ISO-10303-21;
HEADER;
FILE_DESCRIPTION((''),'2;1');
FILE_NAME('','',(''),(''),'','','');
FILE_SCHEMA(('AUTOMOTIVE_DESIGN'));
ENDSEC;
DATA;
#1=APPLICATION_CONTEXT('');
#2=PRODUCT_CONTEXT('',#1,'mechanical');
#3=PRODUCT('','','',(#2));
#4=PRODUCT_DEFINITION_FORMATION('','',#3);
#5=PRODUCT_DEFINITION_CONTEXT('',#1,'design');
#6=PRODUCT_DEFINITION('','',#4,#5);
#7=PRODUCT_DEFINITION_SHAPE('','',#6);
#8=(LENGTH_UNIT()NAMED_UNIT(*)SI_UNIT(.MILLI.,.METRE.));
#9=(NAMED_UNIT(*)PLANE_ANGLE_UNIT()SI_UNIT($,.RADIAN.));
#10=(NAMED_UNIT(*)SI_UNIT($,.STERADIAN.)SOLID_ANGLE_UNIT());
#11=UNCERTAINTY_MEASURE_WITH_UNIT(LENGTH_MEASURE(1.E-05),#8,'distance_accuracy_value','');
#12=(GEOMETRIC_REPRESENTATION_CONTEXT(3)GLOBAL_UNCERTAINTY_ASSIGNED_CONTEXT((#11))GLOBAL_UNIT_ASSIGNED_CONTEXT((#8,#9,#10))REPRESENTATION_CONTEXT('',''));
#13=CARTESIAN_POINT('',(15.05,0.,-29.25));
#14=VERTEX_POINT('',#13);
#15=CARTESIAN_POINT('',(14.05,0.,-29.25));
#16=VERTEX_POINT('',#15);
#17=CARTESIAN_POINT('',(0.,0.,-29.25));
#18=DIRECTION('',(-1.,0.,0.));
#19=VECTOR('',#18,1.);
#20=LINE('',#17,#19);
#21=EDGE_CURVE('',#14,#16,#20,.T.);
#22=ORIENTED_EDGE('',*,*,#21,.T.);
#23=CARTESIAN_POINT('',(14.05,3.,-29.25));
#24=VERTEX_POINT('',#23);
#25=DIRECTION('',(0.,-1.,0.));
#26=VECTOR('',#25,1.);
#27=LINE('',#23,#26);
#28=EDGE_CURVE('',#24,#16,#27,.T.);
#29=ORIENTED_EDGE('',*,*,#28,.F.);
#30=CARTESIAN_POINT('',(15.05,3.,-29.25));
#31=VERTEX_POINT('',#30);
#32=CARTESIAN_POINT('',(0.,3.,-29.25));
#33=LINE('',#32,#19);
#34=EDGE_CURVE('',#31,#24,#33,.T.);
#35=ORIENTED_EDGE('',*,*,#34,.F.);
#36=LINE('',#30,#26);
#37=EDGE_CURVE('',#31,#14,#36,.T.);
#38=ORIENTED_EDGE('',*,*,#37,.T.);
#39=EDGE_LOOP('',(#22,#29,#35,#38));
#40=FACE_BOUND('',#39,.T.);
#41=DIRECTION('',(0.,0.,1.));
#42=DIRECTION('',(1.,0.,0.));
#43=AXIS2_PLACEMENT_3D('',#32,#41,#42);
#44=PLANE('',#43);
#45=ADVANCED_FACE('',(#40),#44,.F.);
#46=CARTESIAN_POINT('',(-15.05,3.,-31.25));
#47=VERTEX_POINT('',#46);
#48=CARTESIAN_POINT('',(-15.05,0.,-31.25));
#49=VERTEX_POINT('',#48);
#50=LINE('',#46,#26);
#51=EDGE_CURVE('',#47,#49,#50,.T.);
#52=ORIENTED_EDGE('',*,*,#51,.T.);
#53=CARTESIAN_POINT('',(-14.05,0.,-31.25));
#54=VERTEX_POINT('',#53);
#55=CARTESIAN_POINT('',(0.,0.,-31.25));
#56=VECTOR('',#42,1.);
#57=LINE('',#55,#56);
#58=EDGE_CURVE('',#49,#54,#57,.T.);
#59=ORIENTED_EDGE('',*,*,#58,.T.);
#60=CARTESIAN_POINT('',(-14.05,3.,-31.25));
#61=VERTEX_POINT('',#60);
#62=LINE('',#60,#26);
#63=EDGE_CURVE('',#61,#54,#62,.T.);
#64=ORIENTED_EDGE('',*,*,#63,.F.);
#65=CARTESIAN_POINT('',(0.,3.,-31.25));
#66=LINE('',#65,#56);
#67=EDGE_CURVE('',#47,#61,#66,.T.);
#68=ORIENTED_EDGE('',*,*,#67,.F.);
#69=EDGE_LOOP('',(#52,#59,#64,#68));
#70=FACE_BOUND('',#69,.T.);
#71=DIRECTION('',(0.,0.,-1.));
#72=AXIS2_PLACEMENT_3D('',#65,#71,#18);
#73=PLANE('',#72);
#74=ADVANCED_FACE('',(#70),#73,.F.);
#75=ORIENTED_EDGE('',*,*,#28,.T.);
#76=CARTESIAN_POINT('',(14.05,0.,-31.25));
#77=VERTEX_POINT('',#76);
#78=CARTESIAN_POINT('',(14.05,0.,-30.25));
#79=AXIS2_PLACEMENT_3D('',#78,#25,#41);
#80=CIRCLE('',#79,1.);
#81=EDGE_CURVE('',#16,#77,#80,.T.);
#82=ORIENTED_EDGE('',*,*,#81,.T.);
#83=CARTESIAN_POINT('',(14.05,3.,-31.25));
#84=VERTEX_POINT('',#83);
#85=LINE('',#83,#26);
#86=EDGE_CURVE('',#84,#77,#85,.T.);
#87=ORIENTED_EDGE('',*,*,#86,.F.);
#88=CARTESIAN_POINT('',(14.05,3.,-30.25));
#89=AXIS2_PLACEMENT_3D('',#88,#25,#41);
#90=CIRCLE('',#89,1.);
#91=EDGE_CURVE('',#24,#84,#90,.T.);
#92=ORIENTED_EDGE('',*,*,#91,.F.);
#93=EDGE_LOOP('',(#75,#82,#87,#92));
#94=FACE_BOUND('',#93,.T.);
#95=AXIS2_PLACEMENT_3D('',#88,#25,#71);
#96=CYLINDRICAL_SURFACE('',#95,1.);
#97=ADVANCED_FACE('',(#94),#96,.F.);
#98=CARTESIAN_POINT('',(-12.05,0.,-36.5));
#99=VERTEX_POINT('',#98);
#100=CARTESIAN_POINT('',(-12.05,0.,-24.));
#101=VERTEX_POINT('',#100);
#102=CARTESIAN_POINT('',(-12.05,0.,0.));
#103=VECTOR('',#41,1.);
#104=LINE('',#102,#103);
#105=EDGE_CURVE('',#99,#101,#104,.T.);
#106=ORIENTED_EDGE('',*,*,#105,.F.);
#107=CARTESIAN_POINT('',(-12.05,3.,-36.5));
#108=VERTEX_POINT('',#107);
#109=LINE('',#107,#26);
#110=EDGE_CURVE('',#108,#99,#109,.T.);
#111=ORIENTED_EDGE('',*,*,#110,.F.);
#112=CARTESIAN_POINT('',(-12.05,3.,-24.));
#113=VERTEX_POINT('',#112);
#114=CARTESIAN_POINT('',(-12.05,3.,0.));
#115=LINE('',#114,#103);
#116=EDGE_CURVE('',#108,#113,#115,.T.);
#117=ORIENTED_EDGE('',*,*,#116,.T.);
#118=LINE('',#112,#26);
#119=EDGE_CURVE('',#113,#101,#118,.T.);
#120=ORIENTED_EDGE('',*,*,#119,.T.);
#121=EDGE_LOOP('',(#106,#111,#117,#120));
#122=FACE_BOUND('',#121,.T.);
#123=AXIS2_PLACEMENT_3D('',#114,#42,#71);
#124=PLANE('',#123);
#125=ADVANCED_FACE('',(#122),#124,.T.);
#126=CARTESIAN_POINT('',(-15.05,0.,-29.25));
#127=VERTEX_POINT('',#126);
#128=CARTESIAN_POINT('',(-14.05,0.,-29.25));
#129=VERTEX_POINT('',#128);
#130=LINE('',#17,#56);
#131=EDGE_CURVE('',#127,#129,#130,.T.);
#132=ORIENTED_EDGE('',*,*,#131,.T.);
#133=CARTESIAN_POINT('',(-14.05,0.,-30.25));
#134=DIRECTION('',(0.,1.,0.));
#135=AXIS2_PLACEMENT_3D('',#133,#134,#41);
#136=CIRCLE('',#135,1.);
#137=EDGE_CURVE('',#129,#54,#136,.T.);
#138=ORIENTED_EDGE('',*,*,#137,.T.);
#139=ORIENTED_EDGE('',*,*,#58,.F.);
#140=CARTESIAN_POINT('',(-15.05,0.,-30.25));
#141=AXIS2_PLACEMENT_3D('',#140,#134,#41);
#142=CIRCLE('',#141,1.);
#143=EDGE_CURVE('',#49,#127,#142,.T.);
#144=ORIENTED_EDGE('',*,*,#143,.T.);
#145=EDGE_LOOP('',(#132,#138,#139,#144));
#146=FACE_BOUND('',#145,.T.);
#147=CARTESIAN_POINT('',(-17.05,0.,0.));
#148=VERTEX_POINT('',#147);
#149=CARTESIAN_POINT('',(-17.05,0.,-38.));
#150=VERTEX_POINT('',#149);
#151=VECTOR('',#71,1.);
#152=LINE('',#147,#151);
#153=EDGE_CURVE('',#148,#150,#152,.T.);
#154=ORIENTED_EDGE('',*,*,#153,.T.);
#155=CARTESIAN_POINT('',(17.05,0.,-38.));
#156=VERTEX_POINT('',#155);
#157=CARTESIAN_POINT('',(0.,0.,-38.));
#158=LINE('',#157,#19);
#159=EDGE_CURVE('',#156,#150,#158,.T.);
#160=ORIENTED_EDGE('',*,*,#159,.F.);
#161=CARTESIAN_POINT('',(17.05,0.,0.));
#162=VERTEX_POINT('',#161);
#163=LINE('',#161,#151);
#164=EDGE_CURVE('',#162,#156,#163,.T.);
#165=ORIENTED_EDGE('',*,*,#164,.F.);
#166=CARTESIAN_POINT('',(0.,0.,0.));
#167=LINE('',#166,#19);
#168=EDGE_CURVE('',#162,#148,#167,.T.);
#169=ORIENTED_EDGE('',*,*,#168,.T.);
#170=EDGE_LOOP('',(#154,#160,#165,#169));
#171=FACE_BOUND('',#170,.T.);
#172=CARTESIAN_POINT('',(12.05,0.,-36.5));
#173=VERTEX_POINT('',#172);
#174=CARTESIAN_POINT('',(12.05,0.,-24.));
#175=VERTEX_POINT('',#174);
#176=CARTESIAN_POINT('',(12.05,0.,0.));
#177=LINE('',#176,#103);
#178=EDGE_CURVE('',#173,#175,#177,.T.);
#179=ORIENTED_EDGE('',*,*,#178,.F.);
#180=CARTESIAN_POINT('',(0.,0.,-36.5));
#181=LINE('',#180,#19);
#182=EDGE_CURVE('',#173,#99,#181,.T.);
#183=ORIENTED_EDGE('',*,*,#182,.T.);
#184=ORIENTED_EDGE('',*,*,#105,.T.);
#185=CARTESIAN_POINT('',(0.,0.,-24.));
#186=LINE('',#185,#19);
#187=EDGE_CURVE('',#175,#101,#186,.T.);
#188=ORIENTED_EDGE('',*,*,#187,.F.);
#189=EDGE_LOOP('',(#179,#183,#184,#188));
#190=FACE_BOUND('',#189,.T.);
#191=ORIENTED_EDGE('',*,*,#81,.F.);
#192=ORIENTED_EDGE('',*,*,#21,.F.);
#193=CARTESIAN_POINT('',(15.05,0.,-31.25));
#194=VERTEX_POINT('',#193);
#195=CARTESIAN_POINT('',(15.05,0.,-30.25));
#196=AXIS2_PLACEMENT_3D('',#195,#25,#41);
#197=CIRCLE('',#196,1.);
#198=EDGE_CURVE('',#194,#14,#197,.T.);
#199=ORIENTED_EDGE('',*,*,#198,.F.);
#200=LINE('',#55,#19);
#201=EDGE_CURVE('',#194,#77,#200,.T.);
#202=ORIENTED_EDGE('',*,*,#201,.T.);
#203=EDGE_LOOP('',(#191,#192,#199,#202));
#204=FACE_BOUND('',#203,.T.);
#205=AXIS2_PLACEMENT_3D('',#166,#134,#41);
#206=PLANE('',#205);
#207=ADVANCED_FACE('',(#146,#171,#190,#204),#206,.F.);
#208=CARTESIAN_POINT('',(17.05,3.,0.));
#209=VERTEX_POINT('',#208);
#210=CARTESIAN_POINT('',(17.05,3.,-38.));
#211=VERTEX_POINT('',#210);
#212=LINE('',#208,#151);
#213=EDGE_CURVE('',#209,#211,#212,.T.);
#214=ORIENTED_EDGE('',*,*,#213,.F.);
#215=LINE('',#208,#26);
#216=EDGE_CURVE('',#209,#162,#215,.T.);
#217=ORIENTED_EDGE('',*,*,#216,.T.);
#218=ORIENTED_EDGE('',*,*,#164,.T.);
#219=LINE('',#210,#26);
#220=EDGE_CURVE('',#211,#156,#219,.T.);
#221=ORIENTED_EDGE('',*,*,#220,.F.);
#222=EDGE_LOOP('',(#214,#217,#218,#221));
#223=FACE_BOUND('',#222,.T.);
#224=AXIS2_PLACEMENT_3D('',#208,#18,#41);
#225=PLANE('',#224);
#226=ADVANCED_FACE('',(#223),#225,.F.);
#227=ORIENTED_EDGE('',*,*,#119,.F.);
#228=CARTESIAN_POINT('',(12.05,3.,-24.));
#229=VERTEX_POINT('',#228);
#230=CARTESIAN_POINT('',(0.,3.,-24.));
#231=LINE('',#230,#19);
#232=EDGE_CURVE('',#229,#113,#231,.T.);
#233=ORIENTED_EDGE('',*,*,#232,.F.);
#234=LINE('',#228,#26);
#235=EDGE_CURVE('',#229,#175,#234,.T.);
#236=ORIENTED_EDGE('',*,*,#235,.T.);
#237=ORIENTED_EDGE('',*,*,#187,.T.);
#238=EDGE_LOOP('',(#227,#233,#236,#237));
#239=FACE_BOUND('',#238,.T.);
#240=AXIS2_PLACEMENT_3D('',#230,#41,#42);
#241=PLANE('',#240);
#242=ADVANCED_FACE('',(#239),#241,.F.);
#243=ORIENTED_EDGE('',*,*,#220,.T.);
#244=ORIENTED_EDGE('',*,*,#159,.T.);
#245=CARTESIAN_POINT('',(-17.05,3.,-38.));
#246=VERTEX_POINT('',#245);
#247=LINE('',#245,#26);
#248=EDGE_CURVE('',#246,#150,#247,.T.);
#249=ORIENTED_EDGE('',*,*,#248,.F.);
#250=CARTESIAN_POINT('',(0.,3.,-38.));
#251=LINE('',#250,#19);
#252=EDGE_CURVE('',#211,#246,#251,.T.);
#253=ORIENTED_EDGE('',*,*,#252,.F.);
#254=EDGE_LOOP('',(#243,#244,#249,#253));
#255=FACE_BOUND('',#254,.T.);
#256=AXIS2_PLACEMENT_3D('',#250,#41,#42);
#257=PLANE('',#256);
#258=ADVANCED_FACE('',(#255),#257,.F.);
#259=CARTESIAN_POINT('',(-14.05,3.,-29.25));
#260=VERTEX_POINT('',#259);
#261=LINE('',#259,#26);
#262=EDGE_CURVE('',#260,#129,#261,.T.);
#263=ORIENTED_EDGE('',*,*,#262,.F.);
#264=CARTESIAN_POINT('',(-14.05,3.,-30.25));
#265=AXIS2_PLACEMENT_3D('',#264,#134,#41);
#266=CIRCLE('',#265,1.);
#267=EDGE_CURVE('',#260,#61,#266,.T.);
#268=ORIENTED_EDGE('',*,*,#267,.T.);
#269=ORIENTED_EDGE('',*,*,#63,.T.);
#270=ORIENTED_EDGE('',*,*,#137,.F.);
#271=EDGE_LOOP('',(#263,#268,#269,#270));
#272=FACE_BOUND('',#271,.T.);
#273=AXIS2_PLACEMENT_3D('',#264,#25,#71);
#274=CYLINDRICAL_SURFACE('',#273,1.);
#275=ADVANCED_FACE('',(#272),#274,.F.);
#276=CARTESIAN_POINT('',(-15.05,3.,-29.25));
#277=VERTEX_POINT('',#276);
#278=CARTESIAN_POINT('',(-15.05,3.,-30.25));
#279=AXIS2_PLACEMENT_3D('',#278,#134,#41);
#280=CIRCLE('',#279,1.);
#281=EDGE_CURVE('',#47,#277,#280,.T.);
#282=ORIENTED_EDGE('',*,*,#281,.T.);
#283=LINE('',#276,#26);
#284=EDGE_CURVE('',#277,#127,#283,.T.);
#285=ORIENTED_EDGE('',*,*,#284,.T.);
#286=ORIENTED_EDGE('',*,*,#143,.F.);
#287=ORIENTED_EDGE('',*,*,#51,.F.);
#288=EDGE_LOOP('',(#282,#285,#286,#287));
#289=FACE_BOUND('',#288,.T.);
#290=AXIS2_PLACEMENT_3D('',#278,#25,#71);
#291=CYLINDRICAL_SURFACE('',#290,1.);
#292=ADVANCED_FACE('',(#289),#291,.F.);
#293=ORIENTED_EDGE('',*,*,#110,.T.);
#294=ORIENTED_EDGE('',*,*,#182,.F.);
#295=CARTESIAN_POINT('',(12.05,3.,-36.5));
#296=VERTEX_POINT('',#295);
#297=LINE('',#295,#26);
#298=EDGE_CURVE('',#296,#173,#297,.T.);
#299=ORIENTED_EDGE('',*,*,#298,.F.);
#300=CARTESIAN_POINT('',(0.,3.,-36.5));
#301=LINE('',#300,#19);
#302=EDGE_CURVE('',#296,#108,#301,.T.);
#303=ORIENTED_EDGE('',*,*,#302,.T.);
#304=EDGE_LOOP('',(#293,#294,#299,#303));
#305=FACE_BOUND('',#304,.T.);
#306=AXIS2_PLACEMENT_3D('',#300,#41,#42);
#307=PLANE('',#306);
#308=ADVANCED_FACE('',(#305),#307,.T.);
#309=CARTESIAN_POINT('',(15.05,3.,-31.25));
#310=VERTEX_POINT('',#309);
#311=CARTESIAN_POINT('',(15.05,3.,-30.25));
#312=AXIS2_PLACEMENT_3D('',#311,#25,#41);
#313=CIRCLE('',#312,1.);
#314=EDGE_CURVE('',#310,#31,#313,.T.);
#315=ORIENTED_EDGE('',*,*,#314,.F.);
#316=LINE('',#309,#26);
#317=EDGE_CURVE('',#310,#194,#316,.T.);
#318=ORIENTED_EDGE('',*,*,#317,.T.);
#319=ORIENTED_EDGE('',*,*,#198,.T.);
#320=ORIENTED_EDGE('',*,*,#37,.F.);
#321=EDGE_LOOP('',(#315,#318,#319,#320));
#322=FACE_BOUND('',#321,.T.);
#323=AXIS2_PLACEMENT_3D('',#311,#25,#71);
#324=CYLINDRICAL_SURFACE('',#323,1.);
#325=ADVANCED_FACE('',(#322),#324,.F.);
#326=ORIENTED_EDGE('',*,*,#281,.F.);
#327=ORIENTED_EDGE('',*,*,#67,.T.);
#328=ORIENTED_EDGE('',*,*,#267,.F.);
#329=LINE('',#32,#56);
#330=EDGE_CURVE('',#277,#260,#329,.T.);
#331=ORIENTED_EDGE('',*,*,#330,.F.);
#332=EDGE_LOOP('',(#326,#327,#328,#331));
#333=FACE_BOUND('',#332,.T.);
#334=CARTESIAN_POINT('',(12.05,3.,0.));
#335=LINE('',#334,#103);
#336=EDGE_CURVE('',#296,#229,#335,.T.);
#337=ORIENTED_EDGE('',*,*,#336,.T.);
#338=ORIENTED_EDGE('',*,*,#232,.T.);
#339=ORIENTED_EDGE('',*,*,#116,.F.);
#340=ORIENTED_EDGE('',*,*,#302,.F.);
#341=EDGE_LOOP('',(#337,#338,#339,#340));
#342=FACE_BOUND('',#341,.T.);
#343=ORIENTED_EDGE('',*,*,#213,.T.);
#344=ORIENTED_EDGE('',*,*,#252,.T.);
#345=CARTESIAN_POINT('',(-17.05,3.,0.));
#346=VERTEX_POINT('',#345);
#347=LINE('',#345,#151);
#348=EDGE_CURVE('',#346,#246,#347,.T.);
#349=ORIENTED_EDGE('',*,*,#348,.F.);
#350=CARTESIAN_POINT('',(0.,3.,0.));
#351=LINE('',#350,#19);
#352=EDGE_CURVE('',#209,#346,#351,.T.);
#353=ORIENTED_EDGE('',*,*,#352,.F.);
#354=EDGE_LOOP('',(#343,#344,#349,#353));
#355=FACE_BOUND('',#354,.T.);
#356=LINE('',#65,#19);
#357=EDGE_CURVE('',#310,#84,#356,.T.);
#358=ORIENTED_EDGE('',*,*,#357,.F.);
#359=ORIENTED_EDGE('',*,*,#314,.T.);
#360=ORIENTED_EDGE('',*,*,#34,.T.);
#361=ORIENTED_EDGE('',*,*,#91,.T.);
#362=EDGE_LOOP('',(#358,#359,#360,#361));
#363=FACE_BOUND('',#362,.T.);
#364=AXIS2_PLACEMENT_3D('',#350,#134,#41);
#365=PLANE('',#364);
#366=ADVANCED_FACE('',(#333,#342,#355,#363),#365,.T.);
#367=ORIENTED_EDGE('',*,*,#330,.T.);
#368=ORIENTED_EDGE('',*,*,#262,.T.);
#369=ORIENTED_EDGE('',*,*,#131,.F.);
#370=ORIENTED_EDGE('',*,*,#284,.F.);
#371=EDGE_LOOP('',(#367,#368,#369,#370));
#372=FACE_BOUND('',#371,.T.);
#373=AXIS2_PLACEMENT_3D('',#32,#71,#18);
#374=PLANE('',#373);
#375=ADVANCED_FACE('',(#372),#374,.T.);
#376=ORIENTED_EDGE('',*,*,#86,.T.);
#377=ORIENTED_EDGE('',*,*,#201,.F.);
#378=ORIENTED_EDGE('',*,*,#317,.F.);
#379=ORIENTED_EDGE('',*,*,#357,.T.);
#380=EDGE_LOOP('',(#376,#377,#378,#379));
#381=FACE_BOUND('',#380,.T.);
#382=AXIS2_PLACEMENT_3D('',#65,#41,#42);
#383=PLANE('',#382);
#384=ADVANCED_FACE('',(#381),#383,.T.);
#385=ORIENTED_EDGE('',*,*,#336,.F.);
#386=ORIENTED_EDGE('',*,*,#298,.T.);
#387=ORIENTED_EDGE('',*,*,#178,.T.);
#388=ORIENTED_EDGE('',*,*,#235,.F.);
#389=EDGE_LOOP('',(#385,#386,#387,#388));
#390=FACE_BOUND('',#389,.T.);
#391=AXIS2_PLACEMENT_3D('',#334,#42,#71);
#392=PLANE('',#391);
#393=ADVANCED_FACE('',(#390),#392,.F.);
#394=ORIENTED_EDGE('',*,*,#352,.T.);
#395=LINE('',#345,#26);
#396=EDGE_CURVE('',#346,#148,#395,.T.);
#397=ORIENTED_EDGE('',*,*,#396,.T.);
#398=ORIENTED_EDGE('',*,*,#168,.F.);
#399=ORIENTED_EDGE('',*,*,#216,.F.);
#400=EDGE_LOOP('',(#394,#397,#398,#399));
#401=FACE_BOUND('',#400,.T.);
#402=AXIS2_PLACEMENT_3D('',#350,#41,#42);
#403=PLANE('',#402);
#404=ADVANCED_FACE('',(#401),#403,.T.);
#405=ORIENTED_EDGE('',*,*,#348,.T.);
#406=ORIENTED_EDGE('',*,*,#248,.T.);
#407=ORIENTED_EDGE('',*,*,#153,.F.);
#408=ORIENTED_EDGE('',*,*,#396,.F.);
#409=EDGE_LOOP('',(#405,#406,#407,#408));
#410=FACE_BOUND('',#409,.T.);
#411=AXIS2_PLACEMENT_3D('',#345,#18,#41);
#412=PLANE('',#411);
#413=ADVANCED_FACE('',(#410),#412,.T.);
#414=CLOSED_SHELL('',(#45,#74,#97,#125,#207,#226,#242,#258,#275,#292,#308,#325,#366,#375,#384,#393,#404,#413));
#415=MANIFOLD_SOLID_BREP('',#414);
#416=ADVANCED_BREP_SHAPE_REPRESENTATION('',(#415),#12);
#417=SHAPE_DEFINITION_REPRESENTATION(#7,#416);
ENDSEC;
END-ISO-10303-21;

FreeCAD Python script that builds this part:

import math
import FreeCAD as App
import Part
import Sketcher
Q = App.Units.Quantity

doc = App.newDocument("Part")
params = doc.addObject("Spreadsheet::Sheet", "Params")
for row, (alias, value) in enumerate([
    ("sketch1_radius", "1 mm"),
    ("sketch1_width", "1 mm"),
    ("sketch1_height", "38 mm"),
    ("sketch1_height2", "24 mm"),
    ("sketch1_height3", "1.5 mm"),
    ("pad1_length", "3 mm"),
], start=1):
    params.set(f"A{row}", alias)
    params.set(f"B{row}", "=" + value)
    params.setAlias(f"B{row}", alias)

body = doc.addObject("PartDesign::Body", "Body")

# Sketch on XZ plane
sketch1 = body.newObject("Sketcher::SketchObject", "Sketch")
sketch1.AttachmentSupport = (doc.getObject("XZ_Plane"), [""])
sketch1.MapMode = "FlatFace"
sketch1.addGeometry(Part.LineSegment(App.Vector(-12.1, -36.5, 0), App.Vector(0, -36.5, 0)), False)
sketch1.addGeometry(Part.LineSegment(App.Vector(0, -36.5, 0), App.Vector(0, -38, 0)), False)
sketch1.addGeometry(Part.LineSegment(App.Vector(0, -38, 0), App.Vector(-17.1, -38, 0)), False)
sketch1.addGeometry(Part.LineSegment(App.Vector(-17.1, -38, 0), App.Vector(-17.1, 0, 0)), False)
sketch1.addGeometry(Part.LineSegment(App.Vector(-17.1, 0, 0), App.Vector(0, 0, 0)), False)
sketch1.addGeometry(Part.LineSegment(App.Vector(0, 0, 0), App.Vector(0, -24, 0)), False)
sketch1.addGeometry(Part.LineSegment(App.Vector(0, -24, 0), App.Vector(-12.1, -24, 0)), False)
sketch1.addGeometry(Part.LineSegment(App.Vector(-12.1, -24, 0), App.Vector(-12.1, -36.5, 0)), False)
sketch1.addGeometry(Part.LineSegment(App.Vector(-14.1, -29.2, 0), App.Vector(-15.1, -29.2, 0)), False)
sketch1.addGeometry(Part.ArcOfCircle(Part.Circle(App.Vector(-15.1, -30.2, 0), App.Vector(0, 0, 1), 1), math.radians(90), math.radians(270)), False)
sketch1.addGeometry(Part.LineSegment(App.Vector(-15.1, -31.2, 0), App.Vector(-14.1, -31.2, 0)), False)
sketch1.addGeometry(Part.ArcOfCircle(Part.Circle(App.Vector(-14.1, -30.2, 0), App.Vector(0, 0, 1), 1), math.radians(-90), math.radians(90)), False)
sketch1.addConstraint(Sketcher.Constraint("Coincident", 0, 2, 1, 1))
sketch1.addConstraint(Sketcher.Constraint("Coincident", 1, 2, 2, 1))
sketch1.addConstraint(Sketcher.Constraint("Coincident", 2, 2, 3, 1))
sketch1.addConstraint(Sketcher.Constraint("Coincident", 3, 2, 4, 1))
sketch1.addConstraint(Sketcher.Constraint("Coincident", 4, 2, 5, 1))
sketch1.addConstraint(Sketcher.Constraint("Coincident", 5, 2, 6, 1))
sketch1.addConstraint(Sketcher.Constraint("Coincident", 6, 2, 7, 1))
sketch1.addConstraint(Sketcher.Constraint("Coincident", 7, 2, 0, 1))
sketch1.addConstraint(Sketcher.Constraint("Tangent", 8, 2, 9, 1))
sketch1.addConstraint(Sketcher.Constraint("Tangent", 9, 2, 10, 1))
sketch1.addConstraint(Sketcher.Constraint("Tangent", 10, 2, 11, 1))
sketch1.addConstraint(Sketcher.Constraint("Tangent", 11, 2, 8, 1))
sketch1.addConstraint(Sketcher.Constraint("Horizontal", 0))
sketch1.addConstraint(Sketcher.Constraint("Vertical", 1))
sketch1.addConstraint(Sketcher.Constraint("Horizontal", 2))
sketch1.addConstraint(Sketcher.Constraint("Vertical", 3))
sketch1.addConstraint(Sketcher.Constraint("Horizontal", 4))
sketch1.addConstraint(Sketcher.Constraint("Vertical", 5))
sketch1.addConstraint(Sketcher.Constraint("Horizontal", 6))
sketch1.addConstraint(Sketcher.Constraint("Vertical", 7))
sketch1.addConstraint(Sketcher.Constraint("Horizontal", 8))
sketch1.addConstraint(Sketcher.Constraint("Horizontal", 10))
sketch1.addConstraint(Sketcher.Constraint("Coincident", 4, 2, -1, 1))
sketch1.addConstraint(Sketcher.Constraint("PointOnObject", 0, 2, -2))
sketch1.addConstraint(Sketcher.Constraint("Radius", 9, Q("1 mm")))
sketch1.addConstraint(Sketcher.Constraint("DistanceX", 8, 2, 8, 1, Q("1 mm")))
sketch1.addConstraint(Sketcher.Constraint("DistanceY", 3, 1, 3, 2, Q("38 mm")))
sketch1.addConstraint(Sketcher.Constraint("DistanceY", 5, 2, 5, 1, Q("24 mm")))
sketch1.addConstraint(Sketcher.Constraint("DistanceY", 1, 2, 1, 1, Q("1.5 mm")))
sketch1.addConstraint(Sketcher.Constraint("DistanceX", 2, 2, 9, 3, Q("2 mm")))
sketch1.addConstraint(Sketcher.Constraint("DistanceX", 11, 3, 6, 2, Q("2 mm")))
sketch1.addConstraint(Sketcher.Constraint("DistanceX", 0, 1, 0, 2, Q("12.05 mm")))
sketch1.addConstraint(Sketcher.Constraint("DistanceY", 9, 3, -1, 1, Q("30.25 mm")))
sketch1.setExpression("Constraints[24]", "Params.sketch1_radius")
sketch1.setExpression("Constraints[25]", "Params.sketch1_width")
sketch1.setExpression("Constraints[26]", "Params.sketch1_height")
sketch1.setExpression("Constraints[27]", "Params.sketch1_height2")
sketch1.setExpression("Constraints[28]", "Params.sketch1_height3")
pad1 = body.newObject("PartDesign::Pad", "Pad")
pad1.Profile = sketch1
pad1.setExpression("Length", "Params.pad1_length")
pad1.Reversed = True
doc.recompute()

mirrored = body.newObject("PartDesign::Mirrored", "Mirrored")
mirrored.Originals = [pad1]
mirrored.MirrorPlane = (doc.getObject("YZ_Plane"), [""])
body.Tip = mirrored

doc.recompute()
